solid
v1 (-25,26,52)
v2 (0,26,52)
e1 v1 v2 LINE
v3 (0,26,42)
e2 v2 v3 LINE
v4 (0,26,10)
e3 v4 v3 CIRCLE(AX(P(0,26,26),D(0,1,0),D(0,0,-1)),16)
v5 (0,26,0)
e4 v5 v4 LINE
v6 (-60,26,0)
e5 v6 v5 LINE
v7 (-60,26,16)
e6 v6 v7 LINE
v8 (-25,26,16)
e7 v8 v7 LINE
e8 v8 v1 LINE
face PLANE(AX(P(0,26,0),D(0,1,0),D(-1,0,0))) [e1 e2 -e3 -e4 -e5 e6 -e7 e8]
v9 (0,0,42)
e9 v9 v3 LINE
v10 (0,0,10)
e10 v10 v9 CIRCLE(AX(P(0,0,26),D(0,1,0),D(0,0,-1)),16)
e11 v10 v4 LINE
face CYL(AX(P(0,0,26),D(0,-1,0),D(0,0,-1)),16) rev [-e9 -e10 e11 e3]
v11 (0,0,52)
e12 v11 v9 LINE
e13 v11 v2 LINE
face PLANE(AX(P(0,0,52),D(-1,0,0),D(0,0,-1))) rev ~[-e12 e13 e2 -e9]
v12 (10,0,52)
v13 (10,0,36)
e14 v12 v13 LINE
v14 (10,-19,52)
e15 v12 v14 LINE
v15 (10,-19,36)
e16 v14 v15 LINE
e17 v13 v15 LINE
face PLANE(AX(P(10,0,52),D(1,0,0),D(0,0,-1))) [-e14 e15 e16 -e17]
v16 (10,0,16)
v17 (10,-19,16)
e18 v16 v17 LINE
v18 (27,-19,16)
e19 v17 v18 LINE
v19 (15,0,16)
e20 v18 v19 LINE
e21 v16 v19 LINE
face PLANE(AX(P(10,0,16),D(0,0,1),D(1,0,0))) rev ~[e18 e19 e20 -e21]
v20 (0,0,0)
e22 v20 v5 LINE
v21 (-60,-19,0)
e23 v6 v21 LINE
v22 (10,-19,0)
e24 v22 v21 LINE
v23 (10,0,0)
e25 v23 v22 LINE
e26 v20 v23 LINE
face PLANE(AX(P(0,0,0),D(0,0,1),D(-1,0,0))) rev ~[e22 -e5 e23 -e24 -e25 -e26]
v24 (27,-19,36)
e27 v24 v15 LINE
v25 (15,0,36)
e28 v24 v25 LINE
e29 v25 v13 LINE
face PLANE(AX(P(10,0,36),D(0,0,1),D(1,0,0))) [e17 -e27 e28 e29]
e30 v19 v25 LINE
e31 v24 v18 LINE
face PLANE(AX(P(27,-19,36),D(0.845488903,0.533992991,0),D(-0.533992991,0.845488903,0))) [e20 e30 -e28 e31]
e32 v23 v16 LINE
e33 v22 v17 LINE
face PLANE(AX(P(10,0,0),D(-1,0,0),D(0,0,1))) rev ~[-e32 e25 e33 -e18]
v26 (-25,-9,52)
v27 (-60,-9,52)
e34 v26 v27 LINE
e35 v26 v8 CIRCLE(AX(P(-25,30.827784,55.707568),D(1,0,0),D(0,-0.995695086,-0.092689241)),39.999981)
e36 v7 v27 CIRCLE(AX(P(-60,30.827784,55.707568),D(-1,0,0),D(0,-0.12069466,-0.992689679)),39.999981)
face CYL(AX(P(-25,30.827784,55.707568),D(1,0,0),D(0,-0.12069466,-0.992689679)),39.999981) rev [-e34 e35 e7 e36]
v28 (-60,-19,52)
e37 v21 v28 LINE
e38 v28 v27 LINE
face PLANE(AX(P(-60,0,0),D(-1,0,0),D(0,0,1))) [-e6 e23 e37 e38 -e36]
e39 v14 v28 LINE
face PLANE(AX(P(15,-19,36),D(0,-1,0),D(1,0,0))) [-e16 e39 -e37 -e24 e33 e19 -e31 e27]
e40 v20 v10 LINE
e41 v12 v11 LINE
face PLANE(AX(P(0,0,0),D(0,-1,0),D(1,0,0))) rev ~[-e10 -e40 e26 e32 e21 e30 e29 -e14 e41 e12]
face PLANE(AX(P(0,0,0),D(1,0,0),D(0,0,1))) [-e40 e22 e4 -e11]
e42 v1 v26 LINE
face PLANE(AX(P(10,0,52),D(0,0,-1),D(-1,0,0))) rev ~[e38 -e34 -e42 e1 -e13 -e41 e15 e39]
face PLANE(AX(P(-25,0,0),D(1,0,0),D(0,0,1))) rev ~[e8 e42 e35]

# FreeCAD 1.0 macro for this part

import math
import FreeCAD as App
import Part
import Sketcher

V = App.Vector
Q = App.Units.Quantity

doc = App.newDocument("Part")
params = doc.addObject("Spreadsheet::Sheet", "Params")
for row, (alias, value) in enumerate([
    ("sketch1_radius", "16 mm"),
    ("sketch1_width", "25 mm"),
    ("sketch1_height", "10 mm"),
    ("pad1_length", "26 mm"),
    ("sketch2_radius", "40 mm"),
    ("sketch2_width", "45 mm"),
    ("sketch2_width2", "10 mm"),
    ("sketch2_height", "16 mm"),
    ("sketch2_height2", "52 mm"),
    ("pad2_length", "35 mm"),
    ("sketch3_width", "35 mm"),
    ("sketch3_width2", "5 mm"),
    ("sketch3_height", "16 mm"),
    ("sketch3_height2", "20 mm"),
    ("pad3_length", "19 mm"),
    ("sketch4_width", "12 mm"),
    ("sketch4_height", "19 mm"),
    ("pad4_length", "20 mm"),
], start=1):
    params.set(f"A{row}", alias)
    params.set(f"B{row}", "=" + value)
    params.setAlias(f"B{row}", alias)

body = doc.addObject("PartDesign::Body", "Body")

# Sketch on XZ plane
sketch1 = body.newObject("Sketcher::SketchObject", "Sketch")
sketch1.AttachmentSupport = (doc.getObject("XZ_Plane"), [""])
sketch1.MapMode = "FlatFace"
sketch1.addGeometry(Part.LineSegment(V(0, 10, 0), V(0, 0, 0)), False)
sketch1.addGeometry(Part.LineSegment(V(0, 0, 0), V(-25, 0, 0)), False)
sketch1.addGeometry(Part.LineSegment(V(-25, 0, 0), V(-25, 52, 0)), False)
sketch1.addGeometry(Part.LineSegment(V(-25, 52, 0), V(0, 52, 0)), False)
sketch1.addGeometry(Part.LineSegment(V(0, 52, 0), V(0, 42, 0)), False)
sketch1.addGeometry(Part.ArcOfCircle(Part.Circle(V(0, 26, 0), V(0, 0, 1), 16), math.radians(90), math.radians(270)), False)
sketch1.addConstraint(Sketcher.Constraint("Coincident", 0, 2, 1, 1))
sketch1.addConstraint(Sketcher.Constraint("Coincident", 1, 2, 2, 1))
sketch1.addConstraint(Sketcher.Constraint("Coincident", 2, 2, 3, 1))
sketch1.addConstraint(Sketcher.Constraint("Coincident", 3, 2, 4, 1))
sketch1.addConstraint(Sketcher.Constraint("Coincident", 4, 2, 5, 1))
sketch1.addConstraint(Sketcher.Constraint("Coincident", 5, 2, 0, 1))
sketch1.addConstraint(Sketcher.Constraint("Vertical", 0))
sketch1.addConstraint(Sketcher.Constraint("Horizontal", 1))
sketch1.addConstraint(Sketcher.Constraint("Vertical", 2))
sketch1.addConstraint(Sketcher.Constraint("Horizontal", 3))
sketch1.addConstraint(Sketcher.Constraint("Vertical", 4))
sketch1.addConstraint(Sketcher.Constraint("Coincident", 0, 2, -1, 1))
sketch1.addConstraint(Sketcher.Constraint("PointOnObject", 5, 3, -2))
sketch1.addConstraint(Sketcher.Constraint("PointOnObject", 3, 2, -2))
sketch1.addConstraint(Sketcher.Constraint("Equal", 0, 4))
sketch1.addConstraint(Sketcher.Constraint("Radius", 5, Q("16 mm")))
sketch1.addConstraint(Sketcher.Constraint("DistanceX", 1, 2, 1, 1, Q("25 mm")))
sketch1.addConstraint(Sketcher.Constraint("DistanceY", 0, 2, 0, 1, Q("10 mm")))
sketch1.setExpression("Constraints[15]", "Params.sketch1_radius")
sketch1.setExpression("Constraints[16]", "Params.sketch1_width")
sketch1.setExpression("Constraints[17]", "Params.sketch1_height")
pad1 = body.newObject("PartDesign::Pad", "Pad")
pad1.Profile = sketch1
pad1.setExpression("Length", "Params.pad1_length")
pad1.Reversed = True

# Sketch on YZ plane
sketch2 = body.newObject("Sketcher::SketchObject", "Sketch001")
sketch2.AttachmentSupport = (doc.getObject("YZ_Plane"), [""])
sketch2.MapMode = "FlatFace"
sketch2.AttachmentOffset = App.Placement(V(0, 0, -25), App.Rotation())
sketch2.addGeometry(Part.LineSegment(V(26, 16, 0), V(26, 0, 0)), False)
sketch2.addGeometry(Part.LineSegment(V(26, 0, 0), V(-19, 0, 0)), False)
sketch2.addGeometry(Part.LineSegment(V(-19, 0, 0), V(-19, 52, 0)), False)
sketch2.addGeometry(Part.LineSegment(V(-19, 52, 0), V(-9, 52, 0)), False)
sketch2.addGeometry(Part.ArcOfCircle(Part.Circle(V(31, 56, 0), V(0, 0, 1), 40), math.radians(-175), math.radians(-97)), False)
sketch2.addConstraint(Sketcher.Constraint("Coincident", 0, 2, 1, 1))
sketch2.addConstraint(Sketcher.Constraint("Coincident", 1, 2, 2, 1))
sketch2.addConstraint(Sketcher.Constraint("Coincident", 2, 2, 3, 1))
sketch2.addConstraint(Sketcher.Constraint("Coincident", 3, 2, 4, 1))
sketch2.addConstraint(Sketcher.Constraint("Coincident", 4, 2, 0, 1))
sketch2.addConstraint(Sketcher.Constraint("Vertical", 0))
sketch2.addConstraint(Sketcher.Constraint("Horizontal", 1))
sketch2.addConstraint(Sketcher.Constraint("Vertical", 2))
sketch2.addConstraint(Sketcher.Constraint("Horizontal", 3))
sketch2.addConstraint(Sketcher.Constraint("PointOnObject", 0, 2, -1))
sketch2.addConstraint(Sketcher.Constraint("Radius", 4, Q("40 mm")))
sketch2.addConstraint(Sketcher.Constraint("DistanceX", 1, 2, 1, 1, Q("45 mm")))
sketch2.addConstraint(Sketcher.Constraint("DistanceX", 3, 1, 3, 2, Q("10 mm")))
sketch2.addConstraint(Sketcher.Constraint("DistanceY", 0, 2, 0, 1, Q("16 mm")))
sketch2.addConstraint(Sketcher.Constraint("DistanceY", 2, 1, 2, 2, Q("52 mm")))
sketch2.addConstraint(Sketcher.Constraint("DistanceX", -1, 1, 0, 2, Q("26 mm")))
sketch2.setExpression("Constraints[10]", "Params.sketch2_radius")
sketch2.setExpression("Constraints[11]", "Params.sketch2_width")
sketch2.setExpression("Constraints[12]", "Params.sketch2_width2")
sketch2.setExpression("Constraints[13]", "Params.sketch2_height")
sketch2.setExpression("Constraints[14]", "Params.sketch2_height2")
pad2 = body.newObject("PartDesign::Pad", "Pad001")
pad2.Profile = sketch2
pad2.setExpression("Length", "Params.pad2_length")
pad2.Reversed = True

# Sketch on XZ plane
sketch3 = body.newObject("Sketcher::SketchObject", "Sketch002")
sketch3.AttachmentSupport = (doc.getObject("XZ_Plane"), [""])
sketch3.MapMode = "FlatFace"
sketch3.addGeometry(Part.LineSegment(V(-25, 0, 0), V(10, 0, 0)), False)
sketch3.addGeometry(Part.LineSegment(V(10, 0, 0), V(10, 16, 0)), False)
sketch3.addGeometry(Part.LineSegment(V(10, 16, 0), V(15, 16, 0)), False)
sketch3.addGeometry(Part.LineSegment(V(15, 16, 0), V(15, 36, 0)), False)
sketch3.addGeometry(Part.LineSegment(V(15, 36, 0), V(10, 36, 0)), False)
sketch3.addGeometry(Part.LineSegment(V(10, 36, 0), V(10, 52, 0)), False)
sketch3.addGeometry(Part.LineSegment(V(10, 52, 0), V(-25, 52, 0)), False)
sketch3.addGeometry(Part.LineSegment(V(-25, 52, 0), V(-25, 0, 0)), False)
sketch3.addConstraint(Sketcher.Constraint("Coincident", 0, 2, 1, 1))
sketch3.addConstraint(Sketcher.Constraint("Coincident", 1, 2, 2, 1))
sketch3.addConstraint(Sketcher.Constraint("Coincident", 2, 2, 3, 1))
sketch3.addConstraint(Sketcher.Constraint("Coincident", 3, 2, 4, 1))
sketch3.addConstraint(Sketcher.Constraint("Coincident", 4, 2, 5, 1))
sketch3.addConstraint(Sketcher.Constraint("Coincident", 5, 2, 6, 1))
sketch3.addConstraint(Sketcher.Constraint("Coincident", 6, 2, 7, 1))
sketch3.addConstraint(Sketcher.Constraint("Coincident", 7, 2, 0, 1))
sketch3.addConstraint(Sketcher.Constraint("Horizontal", 0))
sketch3.addConstraint(Sketcher.Constraint("Vertical", 1))
sketch3.addConstraint(Sketcher.Constraint("Horizontal", 2))
sketch3.addConstraint(Sketcher.Constraint("Vertical", 3))
sketch3.addConstraint(Sketcher.Constraint("Horizontal", 4))
sketch3.addConstraint(Sketcher.Constraint("Vertical", 5))
sketch3.addConstraint(Sketcher.Constraint("Horizontal", 6))
sketch3.addConstraint(Sketcher.Constraint("Vertical", 7))
sketch3.addConstraint(Sketcher.Constraint("PointOnObject", 0, 2, -1))
sketch3.addConstraint(Sketcher.Constraint("Vertical", 1, 2, 4, 2))
sketch3.addConstraint(Sketcher.Constraint("Equal", 1, 5))
sketch3.addConstraint(Sketcher.Constraint("DistanceX", 0, 1, 0, 2, Q("35 mm")))
sketch3.addConstraint(Sketcher.Constraint("DistanceX", 2, 1, 2, 2, Q("5 mm")))
sketch3.addConstraint(Sketcher.Constraint("DistanceY", 1, 1, 1, 2, Q("16 mm")))
sketch3.addConstraint(Sketcher.Constraint("DistanceY", 3, 1, 3, 2, Q("20 mm")))
sketch3.addConstraint(Sketcher.Constraint("DistanceX", -1, 1, 0, 2, Q("10 mm")))
sketch3.setExpression("Constraints[19]", "Params.sketch3_width")
sketch3.setExpression("Constraints[20]", "Params.sketch3_width2")
sketch3.setExpression("Constraints[21]", "Params.sketch3_height")
sketch3.setExpression("Constraints[22]", "Params.sketch3_height2")
pad3 = body.newObject("PartDesign::Pad", "Pad002")
pad3.Profile = sketch3
pad3.setExpression("Length", "Params.pad3_length")

# Sketch on XY plane
sketch4 = body.newObject("Sketcher::SketchObject", "Sketch003")
sketch4.AttachmentSupport = (doc.getObject("XY_Plane"), [""])
sketch4.MapMode = "FlatFace"
sketch4.AttachmentOffset = App.Placement(V(0, 0, 36), App.Rotation())
sketch4.addGeometry(Part.LineSegment(V(27, -19, 0), V(15, 0, 0)), False)
sketch4.addGeometry(Part.LineSegment(V(15, 0, 0), V(15, -19, 0)), False)
sketch4.addGeometry(Part.LineSegment(V(15, -19, 0), V(27, -19, 0)), False)
sketch4.addConstraint(Sketcher.Constraint("Coincident", 0, 2, 1, 1))
sketch4.addConstraint(Sketcher.Constraint("Coincident", 1, 2, 2, 1))
sketch4.addConstraint(Sketcher.Constraint("Coincident", 2, 2, 0, 1))
sketch4.addConstraint(Sketcher.Constraint("Vertical", 1))
sketch4.addConstraint(Sketcher.Constraint("Horizontal", 2))
sketch4.addConstraint(Sketcher.Constraint("PointOnObject", 0, 2, -1))
sketch4.addConstraint(Sketcher.Constraint("DistanceX", 2, 1, 2, 2, Q("12 mm")))
sketch4.addConstraint(Sketcher.Constraint("DistanceY", 1, 2, 1, 1, Q("19 mm")))
sketch4.addConstraint(Sketcher.Constraint("DistanceX", -1, 1, 0, 2, Q("15 mm")))
sketch4.setExpression("Constraints[6]", "Params.sketch4_width")
sketch4.setExpression("Constraints[7]", "Params.sketch4_height")
pad4 = body.newObject("PartDesign::Pad", "Pad003")
pad4.Profile = sketch4
pad4.setExpression("Length", "Params.pad4_length")
pad4.Reversed = True

doc.recompute()
